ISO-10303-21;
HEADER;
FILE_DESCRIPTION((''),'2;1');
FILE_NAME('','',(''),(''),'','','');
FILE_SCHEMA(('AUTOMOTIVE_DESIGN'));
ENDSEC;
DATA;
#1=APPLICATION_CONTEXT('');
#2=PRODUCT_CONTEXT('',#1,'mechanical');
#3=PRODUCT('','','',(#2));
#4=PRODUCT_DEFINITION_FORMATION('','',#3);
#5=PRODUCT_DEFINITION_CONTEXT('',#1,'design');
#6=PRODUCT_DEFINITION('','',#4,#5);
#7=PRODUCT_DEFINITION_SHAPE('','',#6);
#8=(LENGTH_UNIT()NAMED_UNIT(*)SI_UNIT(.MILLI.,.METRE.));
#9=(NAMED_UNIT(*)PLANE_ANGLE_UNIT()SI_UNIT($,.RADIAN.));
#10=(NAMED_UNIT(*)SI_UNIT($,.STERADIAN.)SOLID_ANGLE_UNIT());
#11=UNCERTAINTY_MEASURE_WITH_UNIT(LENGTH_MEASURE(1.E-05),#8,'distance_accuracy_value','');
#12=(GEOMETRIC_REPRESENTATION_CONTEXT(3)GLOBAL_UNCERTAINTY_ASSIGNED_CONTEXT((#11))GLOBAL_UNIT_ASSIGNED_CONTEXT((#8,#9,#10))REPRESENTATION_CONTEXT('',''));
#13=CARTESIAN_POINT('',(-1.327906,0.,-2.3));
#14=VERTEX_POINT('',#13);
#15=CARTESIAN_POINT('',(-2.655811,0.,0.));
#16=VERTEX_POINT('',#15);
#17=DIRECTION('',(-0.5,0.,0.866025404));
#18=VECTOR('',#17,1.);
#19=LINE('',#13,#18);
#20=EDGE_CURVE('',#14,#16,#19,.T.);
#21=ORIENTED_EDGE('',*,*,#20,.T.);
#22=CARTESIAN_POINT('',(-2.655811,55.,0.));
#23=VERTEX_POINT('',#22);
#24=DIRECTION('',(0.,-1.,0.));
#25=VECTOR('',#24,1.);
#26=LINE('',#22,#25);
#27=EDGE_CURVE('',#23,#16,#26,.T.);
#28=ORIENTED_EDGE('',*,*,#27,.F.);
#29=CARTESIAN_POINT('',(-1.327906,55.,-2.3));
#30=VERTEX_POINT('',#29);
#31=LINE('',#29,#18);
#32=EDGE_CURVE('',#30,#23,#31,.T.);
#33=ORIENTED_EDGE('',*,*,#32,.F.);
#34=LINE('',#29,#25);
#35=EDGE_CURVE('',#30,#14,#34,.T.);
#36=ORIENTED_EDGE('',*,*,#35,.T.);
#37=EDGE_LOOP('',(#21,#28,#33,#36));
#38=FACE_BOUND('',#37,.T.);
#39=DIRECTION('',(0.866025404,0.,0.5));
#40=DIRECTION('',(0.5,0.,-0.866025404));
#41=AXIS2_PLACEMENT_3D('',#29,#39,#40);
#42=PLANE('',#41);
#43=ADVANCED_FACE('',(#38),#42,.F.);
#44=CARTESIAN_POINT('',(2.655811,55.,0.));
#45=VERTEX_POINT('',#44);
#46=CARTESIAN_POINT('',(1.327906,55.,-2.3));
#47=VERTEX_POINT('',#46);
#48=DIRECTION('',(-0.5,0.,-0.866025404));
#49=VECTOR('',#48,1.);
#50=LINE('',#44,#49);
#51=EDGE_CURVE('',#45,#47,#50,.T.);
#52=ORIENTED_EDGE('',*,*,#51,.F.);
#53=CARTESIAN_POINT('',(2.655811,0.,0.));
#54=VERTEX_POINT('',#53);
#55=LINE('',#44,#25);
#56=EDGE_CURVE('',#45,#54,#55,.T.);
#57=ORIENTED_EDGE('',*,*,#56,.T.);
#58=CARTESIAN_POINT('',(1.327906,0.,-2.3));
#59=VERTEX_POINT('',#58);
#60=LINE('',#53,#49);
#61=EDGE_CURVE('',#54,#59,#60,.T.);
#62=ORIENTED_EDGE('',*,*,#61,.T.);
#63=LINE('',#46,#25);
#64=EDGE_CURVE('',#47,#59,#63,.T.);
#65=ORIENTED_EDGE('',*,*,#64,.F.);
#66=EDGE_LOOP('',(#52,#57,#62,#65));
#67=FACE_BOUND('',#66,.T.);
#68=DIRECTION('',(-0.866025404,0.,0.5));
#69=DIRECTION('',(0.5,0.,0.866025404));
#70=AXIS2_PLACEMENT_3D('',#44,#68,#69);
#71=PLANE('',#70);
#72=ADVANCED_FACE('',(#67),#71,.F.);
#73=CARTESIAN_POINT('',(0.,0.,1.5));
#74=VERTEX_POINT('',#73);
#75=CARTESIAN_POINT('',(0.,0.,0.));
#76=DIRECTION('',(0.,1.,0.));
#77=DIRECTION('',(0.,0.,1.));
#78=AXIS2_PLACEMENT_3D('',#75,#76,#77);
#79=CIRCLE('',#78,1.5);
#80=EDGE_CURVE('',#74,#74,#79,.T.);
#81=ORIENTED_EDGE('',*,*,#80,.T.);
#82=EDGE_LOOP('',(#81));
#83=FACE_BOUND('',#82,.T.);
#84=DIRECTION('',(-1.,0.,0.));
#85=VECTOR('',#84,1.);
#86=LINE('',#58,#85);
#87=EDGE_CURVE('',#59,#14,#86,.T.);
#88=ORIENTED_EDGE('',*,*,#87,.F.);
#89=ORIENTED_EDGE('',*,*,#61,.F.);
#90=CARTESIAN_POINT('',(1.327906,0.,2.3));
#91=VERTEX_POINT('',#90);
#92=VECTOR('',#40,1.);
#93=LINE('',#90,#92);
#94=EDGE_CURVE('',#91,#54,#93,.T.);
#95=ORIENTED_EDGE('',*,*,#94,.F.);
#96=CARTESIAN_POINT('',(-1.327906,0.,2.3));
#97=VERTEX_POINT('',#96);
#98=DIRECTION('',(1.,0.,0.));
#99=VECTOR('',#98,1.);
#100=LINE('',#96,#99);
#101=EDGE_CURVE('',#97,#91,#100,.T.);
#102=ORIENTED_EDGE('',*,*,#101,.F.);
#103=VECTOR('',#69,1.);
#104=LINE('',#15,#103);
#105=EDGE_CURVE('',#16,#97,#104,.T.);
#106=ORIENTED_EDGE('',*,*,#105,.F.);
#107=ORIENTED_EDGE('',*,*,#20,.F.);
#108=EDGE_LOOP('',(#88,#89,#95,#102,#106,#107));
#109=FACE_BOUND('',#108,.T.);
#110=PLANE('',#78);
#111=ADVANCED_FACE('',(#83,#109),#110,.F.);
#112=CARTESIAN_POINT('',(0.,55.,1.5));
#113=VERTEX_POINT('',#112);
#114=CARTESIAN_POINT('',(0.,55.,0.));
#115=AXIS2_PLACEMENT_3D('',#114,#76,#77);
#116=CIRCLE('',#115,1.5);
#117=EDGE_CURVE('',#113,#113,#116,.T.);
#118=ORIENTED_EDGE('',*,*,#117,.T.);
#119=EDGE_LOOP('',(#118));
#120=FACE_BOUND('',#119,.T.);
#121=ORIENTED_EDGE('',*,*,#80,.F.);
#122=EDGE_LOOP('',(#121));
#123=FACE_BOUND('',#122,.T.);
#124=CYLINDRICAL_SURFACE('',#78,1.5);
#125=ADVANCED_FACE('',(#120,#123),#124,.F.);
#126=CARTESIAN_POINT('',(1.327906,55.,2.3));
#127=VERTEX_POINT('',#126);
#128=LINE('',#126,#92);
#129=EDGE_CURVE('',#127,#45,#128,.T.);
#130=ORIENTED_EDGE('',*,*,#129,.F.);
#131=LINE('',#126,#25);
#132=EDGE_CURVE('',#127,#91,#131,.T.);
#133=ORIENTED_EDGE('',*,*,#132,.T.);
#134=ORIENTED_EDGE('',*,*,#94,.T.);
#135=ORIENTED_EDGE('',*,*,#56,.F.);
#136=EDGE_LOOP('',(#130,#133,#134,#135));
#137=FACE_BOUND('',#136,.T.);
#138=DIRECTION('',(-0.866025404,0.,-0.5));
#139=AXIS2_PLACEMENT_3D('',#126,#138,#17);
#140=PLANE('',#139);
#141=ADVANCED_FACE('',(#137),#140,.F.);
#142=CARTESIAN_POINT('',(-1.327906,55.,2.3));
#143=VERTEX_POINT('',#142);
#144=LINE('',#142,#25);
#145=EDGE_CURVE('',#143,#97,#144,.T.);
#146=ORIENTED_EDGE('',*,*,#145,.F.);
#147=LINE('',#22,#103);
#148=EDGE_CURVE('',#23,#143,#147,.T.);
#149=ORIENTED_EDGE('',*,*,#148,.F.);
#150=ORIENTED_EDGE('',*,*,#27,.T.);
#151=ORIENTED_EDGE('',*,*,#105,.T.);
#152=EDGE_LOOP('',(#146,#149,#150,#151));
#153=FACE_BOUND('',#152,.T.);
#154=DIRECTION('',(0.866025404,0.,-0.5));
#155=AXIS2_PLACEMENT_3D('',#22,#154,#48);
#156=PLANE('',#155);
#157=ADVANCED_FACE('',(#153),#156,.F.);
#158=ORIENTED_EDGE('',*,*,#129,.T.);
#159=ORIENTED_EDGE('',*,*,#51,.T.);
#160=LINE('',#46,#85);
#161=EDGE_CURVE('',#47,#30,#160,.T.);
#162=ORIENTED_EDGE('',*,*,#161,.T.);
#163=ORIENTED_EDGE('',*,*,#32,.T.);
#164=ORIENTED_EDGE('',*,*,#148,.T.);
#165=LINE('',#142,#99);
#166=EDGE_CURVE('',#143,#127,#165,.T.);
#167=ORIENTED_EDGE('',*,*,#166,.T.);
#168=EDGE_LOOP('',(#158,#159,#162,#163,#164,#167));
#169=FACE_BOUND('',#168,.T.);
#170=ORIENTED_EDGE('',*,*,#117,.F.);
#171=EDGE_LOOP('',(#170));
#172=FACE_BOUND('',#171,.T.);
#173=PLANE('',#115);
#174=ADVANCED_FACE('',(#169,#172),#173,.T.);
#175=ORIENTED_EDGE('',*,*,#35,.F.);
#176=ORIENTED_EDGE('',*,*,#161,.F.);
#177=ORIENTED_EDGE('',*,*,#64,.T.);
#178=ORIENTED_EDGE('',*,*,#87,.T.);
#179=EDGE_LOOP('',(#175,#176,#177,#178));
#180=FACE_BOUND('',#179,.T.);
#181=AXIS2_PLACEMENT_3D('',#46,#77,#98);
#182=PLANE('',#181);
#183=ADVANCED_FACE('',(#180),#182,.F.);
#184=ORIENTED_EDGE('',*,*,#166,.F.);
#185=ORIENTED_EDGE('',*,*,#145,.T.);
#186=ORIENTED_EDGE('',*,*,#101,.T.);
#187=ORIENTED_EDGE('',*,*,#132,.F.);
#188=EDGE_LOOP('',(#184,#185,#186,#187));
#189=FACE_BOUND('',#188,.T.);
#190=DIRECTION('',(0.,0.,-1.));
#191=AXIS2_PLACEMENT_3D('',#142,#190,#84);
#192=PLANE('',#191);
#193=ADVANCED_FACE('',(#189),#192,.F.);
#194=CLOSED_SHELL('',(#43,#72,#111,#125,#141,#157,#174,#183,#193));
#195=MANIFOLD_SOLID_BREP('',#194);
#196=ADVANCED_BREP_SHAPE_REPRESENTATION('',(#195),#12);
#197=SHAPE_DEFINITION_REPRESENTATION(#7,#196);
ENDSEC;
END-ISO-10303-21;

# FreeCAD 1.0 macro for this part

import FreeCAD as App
import Part
import Sketcher

V = App.Vector
Q = App.Units.Quantity

doc = App.newDocument("Part")
body = doc.addObject("PartDesign::Body", "Body")

sketch1 = body.newObject("Sketcher::SketchObject", "Sketch")
sketch1.AttachmentSupport = (doc.getObject("XZ_Plane"), [""])
sketch1.MapMode = "FlatFace"
sketch1.addGeometry(Part.LineSegment(V(1.3, 2.3, 0), V(2.7, 0, 0)), False)
sketch1.addGeometry(Part.LineSegment(V(2.7, 0, 0), V(1.3, -2.3, 0)), False)
sketch1.addGeometry(Part.LineSegment(V(1.3, -2.3, 0), V(-1.3, -2.3, 0)), False)
sketch1.addGeometry(Part.LineSegment(V(-1.3, -2.3, 0), V(-2.7, 0, 0)), False)
sketch1.addGeometry(Part.LineSegment(V(-2.7, 0, 0), V(-1.3, 2.3, 0)), False)
sketch1.addGeometry(Part.LineSegment(V(-1.3, 2.3, 0), V(1.3, 2.3, 0)), False)
sketch1.addConstraint(Sketcher.Constraint("Coincident", 0, 2, 1, 1))
sketch1.addConstraint(Sketcher.Constraint("Coincident", 1, 2, 2, 1))
sketch1.addConstraint(Sketcher.Constraint("Coincident", 2, 2, 3, 1))
sketch1.addConstraint(Sketcher.Constraint("Coincident", 3, 2, 4, 1))
sketch1.addConstraint(Sketcher.Constraint("Coincident", 4, 2, 5, 1))
sketch1.addConstraint(Sketcher.Constraint("Coincident", 5, 2, 0, 1))
sketch1.addConstraint(Sketcher.Constraint("Horizontal", 2))
sketch1.addConstraint(Sketcher.Constraint("Horizontal", 5))
sketch1.addConstraint(Sketcher.Constraint("Symmetric", 0, 2, 3, 2, -1, 1))
sketch1.addConstraint(Sketcher.Constraint("Symmetric", 1, 2, 4, 2, -1, 1))
sketch1.addConstraint(Sketcher.Constraint("PointOnObject", 0, 2, -1))
sketch1.addConstraint(Sketcher.Constraint("Parallel", 0, 3))
sketch1.addConstraint(Sketcher.Constraint("Vertical", 2, 2, 4, 2))
sketch1.addConstraint(Sketcher.Constraint("Angle", 0, Q("-60 deg")))
sketch1.addConstraint(Sketcher.Constraint("DistanceY", 1, 2, -1, 1, Q("2.3 mm")))
sketch1.addConstraint(Sketcher.Constraint("DistanceX", 2, 2, 2, 1, Q("2.655811 mm")))
pad1 = body.newObject("PartDesign::Pad", "Pad")
pad1.Profile = sketch1
pad1.Length = 55
pad1.Reversed = True

sketch2 = body.newObject("Sketcher::SketchObject", "Sketch001")
sketch2.AttachmentSupport = (doc.getObject("XZ_Plane"), [""])
sketch2.MapMode = "FlatFace"
sketch2.AttachmentOffset = App.Placement(V(0, 0, -55), App.Rotation())
sketch2.addGeometry(Part.Circle(V(0, 0, 0), V(0, 0, 1), 1.5), False)
sketch2.addConstraint(Sketcher.Constraint("Coincident", 0, 3, -1, 1))
sketch2.addConstraint(Sketcher.Constraint("Diameter", 0, Q("3 mm")))
pocket1 = body.newObject("PartDesign::Pocket", "Pocket")
pocket1.Profile = sketch2
pocket1.Type = "ThroughAll"
pocket1.Reversed = True

doc.recompute()
